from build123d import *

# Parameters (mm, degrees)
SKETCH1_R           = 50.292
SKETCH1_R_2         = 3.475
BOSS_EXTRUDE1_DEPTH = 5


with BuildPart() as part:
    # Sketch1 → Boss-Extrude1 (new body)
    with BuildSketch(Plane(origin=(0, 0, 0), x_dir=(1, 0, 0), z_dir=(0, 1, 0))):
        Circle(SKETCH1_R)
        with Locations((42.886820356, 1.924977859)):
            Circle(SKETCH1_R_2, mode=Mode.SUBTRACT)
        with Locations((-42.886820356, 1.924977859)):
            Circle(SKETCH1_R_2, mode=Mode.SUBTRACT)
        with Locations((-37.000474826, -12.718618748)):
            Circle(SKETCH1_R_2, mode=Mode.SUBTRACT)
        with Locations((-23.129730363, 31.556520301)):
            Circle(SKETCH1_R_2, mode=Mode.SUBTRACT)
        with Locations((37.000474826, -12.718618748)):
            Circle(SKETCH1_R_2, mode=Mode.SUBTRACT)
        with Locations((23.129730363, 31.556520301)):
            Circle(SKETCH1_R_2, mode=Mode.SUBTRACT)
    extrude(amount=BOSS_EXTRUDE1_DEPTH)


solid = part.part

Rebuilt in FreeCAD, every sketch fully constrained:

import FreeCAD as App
import Part
import Sketcher

V = App.Vector

doc = App.newDocument("Part")
params = doc.addObject("Spreadsheet::Sheet", "Params")
for row, (alias, value) in enumerate([
    ("sketch1_diameter", "6.95 mm"),
    ("pad1_length", "5 mm"),
], start=1):
    params.set(f"A{row}", alias)
    params.set(f"B{row}", "=" + value)
    params.setAlias(f"B{row}", alias)

body = doc.addObject("PartDesign::Body", "Body")

# Sketch on XZ plane
sketch1 = body.newObject("Sketcher::SketchObject", "Sketch")
sketch1.AttachmentSupport = (doc.getObject("XZ_Plane"), [""])
sketch1.MapMode = "FlatFace"
sketch1.addGeometry([
    Part.Circle(V(0, 0, 0), V(0, 0, 1), 50.3),  # 0
    Part.Circle(V(-37, 12.7, 0), V(0, 0, 1), 3.5),  # 1
    Part.Circle(V(-42.9, -1.9, 0), V(0, 0, 1), 3.5),  # 2
    Part.Circle(V(37, 12.7, 0), V(0, 0, 1), 3.5),  # 3
    Part.Circle(V(42.9, -1.9, 0), V(0, 0, 1), 3.5),  # 4
    Part.Circle(V(-23.1, -31.6, 0), V(0, 0, 1), 3.5),  # 5
    Part.Circle(V(23.1, -31.6, 0), V(0, 0, 1), 3.5),  # 6
], False)
sketch1.addConstraint([
    Sketcher.Constraint("Coincident", 0, 3, -1, 1),
    Sketcher.Constraint("Equal", 1, 2),
    Sketcher.Constraint("Equal", 2, 3),
    Sketcher.Constraint("Equal", 3, 4),
    Sketcher.Constraint("Equal", 4, 5),
    Sketcher.Constraint("Equal", 5, 6),
    Sketcher.Constraint("Symmetric", 1, 3, 3, 3, -2),
    Sketcher.Constraint("Symmetric", 2, 3, 4, 3, -2),
    Sketcher.Constraint("Symmetric", 5, 3, 6, 3, -2),
    Sketcher.Constraint("Diameter", 1, 6.95),
    Sketcher.Constraint("Diameter", 0, 100.584),
    Sketcher.Constraint("DistanceY", -1, 1, 1, 3, 12.718619),
    Sketcher.Constraint("DistanceX", 2, 3, -1, 1, 42.88682),
    Sketcher.Constraint("DistanceX", 5, 3, -1, 1, 23.12973),
    Sketcher.Constraint("DistanceY", 5, 3, -1, 1, 31.55652),
    Sketcher.Constraint("DistanceX", 1, 3, 3, 3, 74.00095),
    Sketcher.Constraint("DistanceY", 2, 3, -1, 1, 1.924978),
])
sketch1.setExpression("Constraints[9]", "Params.sketch1_diameter")
pad1 = body.newObject("PartDesign::Pad", "Pad")
pad1.Profile = sketch1
pad1.setExpression("Length", "Params.pad1_length")
pad1.Reversed = True

doc.recompute()
